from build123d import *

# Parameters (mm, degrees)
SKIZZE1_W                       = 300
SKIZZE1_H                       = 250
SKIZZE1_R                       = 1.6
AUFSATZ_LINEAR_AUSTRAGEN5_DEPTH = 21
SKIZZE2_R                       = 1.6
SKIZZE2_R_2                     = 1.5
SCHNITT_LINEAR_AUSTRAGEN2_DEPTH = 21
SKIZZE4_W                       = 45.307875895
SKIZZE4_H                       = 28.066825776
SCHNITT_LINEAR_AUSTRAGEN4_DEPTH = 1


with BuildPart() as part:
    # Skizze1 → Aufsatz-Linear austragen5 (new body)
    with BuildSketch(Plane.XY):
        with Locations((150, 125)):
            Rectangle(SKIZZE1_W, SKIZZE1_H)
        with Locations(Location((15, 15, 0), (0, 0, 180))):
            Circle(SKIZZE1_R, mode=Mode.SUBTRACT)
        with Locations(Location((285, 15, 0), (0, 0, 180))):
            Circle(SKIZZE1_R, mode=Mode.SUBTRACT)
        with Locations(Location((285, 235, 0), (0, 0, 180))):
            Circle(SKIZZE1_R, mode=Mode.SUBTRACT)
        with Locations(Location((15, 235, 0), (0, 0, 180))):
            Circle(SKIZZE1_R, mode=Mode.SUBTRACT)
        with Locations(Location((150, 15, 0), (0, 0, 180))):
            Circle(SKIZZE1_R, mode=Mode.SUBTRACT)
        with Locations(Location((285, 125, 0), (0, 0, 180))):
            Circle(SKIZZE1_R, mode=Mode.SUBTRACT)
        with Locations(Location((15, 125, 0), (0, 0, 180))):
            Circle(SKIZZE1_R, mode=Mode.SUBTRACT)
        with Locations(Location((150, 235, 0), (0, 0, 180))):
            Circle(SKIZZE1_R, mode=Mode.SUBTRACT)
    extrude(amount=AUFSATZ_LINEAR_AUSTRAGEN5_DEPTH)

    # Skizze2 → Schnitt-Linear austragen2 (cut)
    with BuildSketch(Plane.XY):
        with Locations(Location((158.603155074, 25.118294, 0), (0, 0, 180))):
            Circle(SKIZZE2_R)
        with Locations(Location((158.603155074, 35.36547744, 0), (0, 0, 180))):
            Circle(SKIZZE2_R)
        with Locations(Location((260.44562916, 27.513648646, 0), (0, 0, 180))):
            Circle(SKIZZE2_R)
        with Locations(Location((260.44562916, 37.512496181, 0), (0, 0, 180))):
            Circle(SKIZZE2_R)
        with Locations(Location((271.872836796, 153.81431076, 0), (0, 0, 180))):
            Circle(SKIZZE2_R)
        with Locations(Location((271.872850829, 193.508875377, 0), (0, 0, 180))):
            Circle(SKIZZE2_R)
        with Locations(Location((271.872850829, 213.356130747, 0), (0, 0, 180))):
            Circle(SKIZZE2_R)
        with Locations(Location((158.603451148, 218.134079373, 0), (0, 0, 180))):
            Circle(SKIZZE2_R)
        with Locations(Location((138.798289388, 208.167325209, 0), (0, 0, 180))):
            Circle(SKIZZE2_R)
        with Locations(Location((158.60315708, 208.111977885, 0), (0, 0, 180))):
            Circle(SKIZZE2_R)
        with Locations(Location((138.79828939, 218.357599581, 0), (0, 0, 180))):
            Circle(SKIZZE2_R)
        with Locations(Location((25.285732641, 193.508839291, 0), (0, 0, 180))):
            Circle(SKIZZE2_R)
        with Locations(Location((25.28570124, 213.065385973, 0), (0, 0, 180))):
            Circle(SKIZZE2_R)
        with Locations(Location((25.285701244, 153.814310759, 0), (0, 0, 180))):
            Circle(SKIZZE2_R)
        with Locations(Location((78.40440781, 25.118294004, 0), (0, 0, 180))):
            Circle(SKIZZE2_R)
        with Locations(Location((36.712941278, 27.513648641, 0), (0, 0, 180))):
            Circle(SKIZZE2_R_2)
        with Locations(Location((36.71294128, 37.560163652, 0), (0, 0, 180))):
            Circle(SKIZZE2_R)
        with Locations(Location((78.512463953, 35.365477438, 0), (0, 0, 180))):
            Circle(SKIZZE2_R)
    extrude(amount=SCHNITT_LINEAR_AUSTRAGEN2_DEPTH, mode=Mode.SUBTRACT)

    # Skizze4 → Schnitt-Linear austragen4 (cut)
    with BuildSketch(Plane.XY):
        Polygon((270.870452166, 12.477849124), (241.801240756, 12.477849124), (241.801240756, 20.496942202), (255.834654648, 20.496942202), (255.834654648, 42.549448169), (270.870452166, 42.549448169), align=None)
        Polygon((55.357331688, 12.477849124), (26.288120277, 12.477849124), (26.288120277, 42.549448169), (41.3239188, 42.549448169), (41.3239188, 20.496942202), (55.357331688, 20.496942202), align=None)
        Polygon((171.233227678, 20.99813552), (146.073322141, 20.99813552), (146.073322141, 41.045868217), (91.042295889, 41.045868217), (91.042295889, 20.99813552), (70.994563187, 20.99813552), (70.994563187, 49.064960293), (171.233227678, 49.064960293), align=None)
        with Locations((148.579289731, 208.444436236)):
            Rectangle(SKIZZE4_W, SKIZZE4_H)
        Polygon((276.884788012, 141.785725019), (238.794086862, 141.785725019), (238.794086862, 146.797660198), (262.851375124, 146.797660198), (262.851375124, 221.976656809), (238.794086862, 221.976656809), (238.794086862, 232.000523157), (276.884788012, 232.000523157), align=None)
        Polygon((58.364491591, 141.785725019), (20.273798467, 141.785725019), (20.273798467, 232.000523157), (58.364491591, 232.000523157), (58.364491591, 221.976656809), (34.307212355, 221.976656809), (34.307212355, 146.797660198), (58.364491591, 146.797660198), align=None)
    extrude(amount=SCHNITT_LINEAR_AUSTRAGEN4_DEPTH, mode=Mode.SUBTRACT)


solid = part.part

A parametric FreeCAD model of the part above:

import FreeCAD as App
import Part
import Sketcher
from FreeCAD import Vector


def add_polygon(sketch, points):
    """Adds a closed chain of lines whose ends are joined by coincident constraints."""
    first, n = sketch.GeometryCount, len(points)
    for a, b in zip(points, points[1:] + points[:1]):
        sketch.addGeometry(Part.LineSegment(App.Vector(*a, 0), App.Vector(*b, 0)), False)
    for i in range(n):
        sketch.addConstraint(Sketcher.Constraint("Coincident", first + i, 2, first + (i + 1) % n, 1))

doc = App.newDocument("Part")
body = doc.addObject("PartDesign::Body", "Body")

# Sketch on XY plane
sketch1 = body.newObject("Sketcher::SketchObject", "Sketch")
sketch1.AttachmentSupport = (doc.getObject("XY_Plane"), [""])
sketch1.MapMode = "FlatFace"
add_polygon(sketch1, [(0, 250), (0, 0), (300, 0), (300, 250)])  # lines 0-3
sketch1.addGeometry(Part.Circle(Vector(15, 15, 0), Vector(0, 0, 1), 1.6), False)  # 4
sketch1.addGeometry(Part.Circle(Vector(150, 15, 0), Vector(0, 0, 1), 1.6), False)  # 5
sketch1.addGeometry(Part.Circle(Vector(285, 15, 0), Vector(0, 0, 1), 1.6), False)  # 6
sketch1.addGeometry(Part.Circle(Vector(15, 125, 0), Vector(0, 0, 1), 1.6), False)  # 7
sketch1.addGeometry(Part.Circle(Vector(15, 235, 0), Vector(0, 0, 1), 1.6), False)  # 8
sketch1.addGeometry(Part.Circle(Vector(285, 125, 0), Vector(0, 0, 1), 1.6), False)  # 9
sketch1.addGeometry(Part.Circle(Vector(150, 235, 0), Vector(0, 0, 1), 1.6), False)  # 10
sketch1.addGeometry(Part.Circle(Vector(285, 235, 0), Vector(0, 0, 1), 1.6), False)  # 11
sketch1.addConstraint([
    Sketcher.Constraint("Vertical", 0),
    Sketcher.Constraint("Horizontal", 1),
    Sketcher.Constraint("Vertical", 2),
    Sketcher.Constraint("Horizontal", 3),
    Sketcher.Constraint("Coincident", 0, 2, -1, 1),
    Sketcher.Constraint("Equal", 4, 5),
    Sketcher.Constraint("Equal", 5, 6),
    Sketcher.Constraint("Equal", 6, 7),
    Sketcher.Constraint("Equal", 7, 8),
    Sketcher.Constraint("Equal", 8, 9),
    Sketcher.Constraint("Equal", 9, 10),
    Sketcher.Constraint("Equal", 10, 11),
    Sketcher.Constraint("Horizontal", 4, 3, 5, 3),
    Sketcher.Constraint("Horizontal", 5, 3, 6, 3),
    Sketcher.Constraint("Horizontal", 7, 3, 9, 3),
    Sketcher.Constraint("Horizontal", 8, 3, 10, 3),
    Sketcher.Constraint("Horizontal", 10, 3, 11, 3),
    Sketcher.Constraint("Vertical", 4, 3, 7, 3),
    Sketcher.Constraint("Vertical", 7, 3, 8, 3),
    Sketcher.Constraint("Vertical", 6, 3, 9, 3),
    Sketcher.Constraint("Vertical", 5, 3, 10, 3),
    Sketcher.Constraint("Vertical", 9, 3, 11, 3),
    Sketcher.Constraint("Diameter", 4, 3.2),
    Sketcher.Constraint("DistanceX", 1, 1, 1, 2, 300.0),
    Sketcher.Constraint("DistanceY", 0, 2, 0, 1, 250.0),
    Sketcher.Constraint("DistanceX", -1, 1, 4, 3, 15.0),
    Sketcher.Constraint("DistanceY", -1, 1, 4, 3, 15.0),
    Sketcher.Constraint("DistanceX", -1, 1, 5, 3, 150.0),
    Sketcher.Constraint("DistanceX", -1, 1, 6, 3, 285.0),
    Sketcher.Constraint("DistanceY", -1, 1, 7, 3, 125.0),
    Sketcher.Constraint("DistanceY", -1, 1, 8, 3, 235.0),
])
pad1 = body.newObject("PartDesign::Pad", "Pad")
pad1.Profile = sketch1
pad1.Length = 21

# Sketch on XY plane
sketch2 = body.newObject("Sketcher::SketchObject", "Sketch001")
sketch2.AttachmentSupport = (doc.getObject("XY_Plane"), [""])
sketch2.MapMode = "FlatFace"
sketch2.addGeometry([
    Part.Circle(Vector(158.6, 25.1, 0), Vector(0, 0, 1), 1.6),  # 0
    Part.Circle(Vector(158.6, 35.4, 0), Vector(0, 0, 1), 1.6),  # 1
    Part.Circle(Vector(260.4, 27.5, 0), Vector(0, 0, 1), 1.6),  # 2
    Part.Circle(Vector(260.4, 37.5, 0), Vector(0, 0, 1), 1.6),  # 3
    Part.Circle(Vector(271.9, 153.8, 0), Vector(0, 0, 1), 1.6),  # 4
    Part.Circle(Vector(271.9, 193.5, 0), Vector(0, 0, 1), 1.6),  # 5
    Part.Circle(Vector(271.9, 213.4, 0), Vector(0, 0, 1), 1.6),  # 6
    Part.Circle(Vector(158.6, 218.1, 0), Vector(0, 0, 1), 1.6),  # 7
    Part.Circle(Vector(138.8, 208.2, 0), Vector(0, 0, 1), 1.6),  # 8
    Part.Circle(Vector(158.6, 208.1, 0), Vector(0, 0, 1), 1.6),  # 9
    Part.Circle(Vector(138.8, 218.4, 0), Vector(0, 0, 1), 1.6),  # 10
    Part.Circle(Vector(25.3, 193.5, 0), Vector(0, 0, 1), 1.6),  # 11
    Part.Circle(Vector(25.3, 213.1, 0), Vector(0, 0, 1), 1.6),  # 12
    Part.Circle(Vector(25.3, 153.8, 0), Vector(0, 0, 1), 1.6),  # 13
    Part.Circle(Vector(78.4, 25.1, 0), Vector(0, 0, 1), 1.6),  # 14
    Part.Circle(Vector(36.7, 27.5, 0), Vector(0, 0, 1), 1.5),  # 15
    Part.Circle(Vector(36.7, 37.6, 0), Vector(0, 0, 1), 1.6),  # 16
    Part.Circle(Vector(78.5, 35.4, 0), Vector(0, 0, 1), 1.6),  # 17
], False)
sketch2.addConstraint([
    Sketcher.Constraint("Equal", 0, 1),
    Sketcher.Constraint("Equal", 1, 2),
    Sketcher.Constraint("Equal", 2, 3),
    Sketcher.Constraint("Equal", 3, 4),
    Sketcher.Constraint("Equal", 4, 5),
    Sketcher.Constraint("Equal", 5, 6),
    Sketcher.Constraint("Equal", 6, 7),
    Sketcher.Constraint("Equal", 7, 8),
    Sketcher.Constraint("Equal", 8, 9),
    Sketcher.Constraint("Equal", 9, 10),
    Sketcher.Constraint("Equal", 10, 11),
    Sketcher.Constraint("Equal", 11, 12),
    Sketcher.Constraint("Equal", 12, 13),
    Sketcher.Constraint("Equal", 13, 14),
    Sketcher.Constraint("Equal", 14, 16),
    Sketcher.Constraint("Equal", 16, 17),
    Sketcher.Constraint("Horizontal", 4, 3, 13, 3),
    Sketcher.Constraint("Horizontal", 0, 3, 14, 3),
    Sketcher.Constraint("Horizontal", 2, 3, 15, 3),
    Sketcher.Constraint("Horizontal", 1, 3, 17, 3),
    Sketcher.Constraint("Vertical", 0, 3, 1, 3),
    Sketcher.Constraint("Vertical", 2, 3, 3, 3),
    Sketcher.Constraint("Vertical", 5, 3, 6, 3),
    Sketcher.Constraint("Vertical", 8, 3, 10, 3),
    Sketcher.Constraint("Vertical", 12, 3, 13, 3),
    Sketcher.Constraint("Vertical", 15, 3, 16, 3),
    Sketcher.Constraint("Diameter", 15, 3.0),
    Sketcher.Constraint("Diameter", 0, 3.2),
    Sketcher.Constraint("DistanceY", -1, 1, 10, 3, 218.3576),
    Sketcher.Constraint("DistanceX", -1, 1, 12, 3, 25.285701),
    Sketcher.Constraint("DistanceX", 7, 3, 6, 3, 113.2694),
    Sketcher.Constraint("DistanceY", 1, 3, 7, 3, 182.768602),
    Sketcher.Constraint("DistanceY", 9, 3, 7, 3, 10.022101),
    Sketcher.Constraint("DistanceX", -1, 1, 2, 3, 260.445629),
    Sketcher.Constraint("DistanceY", -1, 1, 2, 3, 27.513649),
    Sketcher.Constraint("DistanceY", -1, 1, 4, 3, 153.814311),
    Sketcher.Constraint("DistanceX", -1, 1, 5, 3, 271.872851),
    Sketcher.Constraint("DistanceY", -1, 1, 6, 3, 213.356131),
    Sketcher.Constraint("DistanceY", -1, 1, 7, 3, 218.134079),
    Sketcher.Constraint("DistanceX", -1, 1, 8, 3, 138.798289),
    Sketcher.Constraint("DistanceY", -1, 1, 11, 3, 193.508839),
    Sketcher.Constraint("DistanceX", -1, 1, 15, 3, 36.712941),
    Sketcher.Constraint("DistanceY", 1, 3, 3, 3, 2.147019),
    Sketcher.Constraint("DistanceX", 1, 3, 4, 3, 113.269682),
    Sketcher.Constraint("DistanceY", 3, 3, 5, 3, 155.996379),
    Sketcher.Constraint("DistanceY", 0, 3, 5, 3, 168.390581),
    Sketcher.Constraint("DistanceY", 5, 3, 8, 3, 14.65845),
    Sketcher.Constraint("DistanceX", 9, 3, 4, 3, 113.26968),
    Sketcher.Constraint("DistanceX", 11, 3, 7, 3, 133.317719),
    Sketcher.Constraint("DistanceY", 8, 3, 12, 3, 4.898061),
    Sketcher.Constraint("DistanceX", 14, 3, 2, 3, 182.041221),
    Sketcher.Constraint("DistanceY", 14, 3, 16, 3, 12.44187),
    Sketcher.Constraint("DistanceX", 17, 3, 1, 3, 80.090691),
    Sketcher.Constraint("DistanceX", -1, 1, 0, 3, 158.603155),
])
pocket1 = body.newObject("PartDesign::Pocket", "Pocket")
pocket1.Profile = sketch2
pocket1.Length = 21
pocket1.Reversed = True

# Sketch on XY plane
sketch3 = body.newObject("Sketcher::SketchObject", "Sketch002")
sketch3.AttachmentSupport = (doc.getObject("XY_Plane"), [""])
sketch3.MapMode = "FlatFace"
add_polygon(sketch3, [(242, 12), (271, 12), (271, 43), (256, 43), (256, 20), (242, 20)])  # lines 0-5
add_polygon(sketch3, [(26, 12), (55, 12), (55, 20), (41, 20), (41, 43), (26, 43)])  # lines 6-11
add_polygon(sketch3, [(146, 21), (171, 21), (171, 49), (71, 49), (71, 21), (91, 21), (91, 41), (146, 41)])  # lines 12-19
add_polygon(sketch3, [(126, 222), (126, 194), (171, 194), (171, 222)])  # lines 20-23
add_polygon(sketch3, [(239, 142), (277, 142), (277, 232), (239, 232), (239, 222), (263, 222), (263, 147), (239, 147)])  # lines 24-31
add_polygon(sketch3, [(20, 142), (58, 142), (58, 147), (34, 147), (34, 222), (58, 222), (58, 232), (20, 232)])  # lines 32-39
sketch3.addConstraint([
    Sketcher.Constraint("Horizontal", 0),
    Sketcher.Constraint("Vertical", 1),
    Sketcher.Constraint("Horizontal", 2),
    Sketcher.Constraint("Vertical", 3),
    Sketcher.Constraint("Horizontal", 4),
    Sketcher.Constraint("Vertical", 5),
    Sketcher.Constraint("Horizontal", 6),
    Sketcher.Constraint("Vertical", 7),
    Sketcher.Constraint("Horizontal", 8),
    Sketcher.Constraint("Vertical", 9),
    Sketcher.Constraint("Horizontal", 10),
    Sketcher.Constraint("Vertical", 11),
    Sketcher.Constraint("Horizontal", 12),
    Sketcher.Constraint("Vertical", 13),
    Sketcher.Constraint("Horizontal", 14),
    Sketcher.Constraint("Vertical", 15),
    Sketcher.Constraint("Horizontal", 16),
    Sketcher.Constraint("Vertical", 17),
    Sketcher.Constraint("Horizontal", 18),
    Sketcher.Constraint("Vertical", 19),
    Sketcher.Constraint("Vertical", 20),
    Sketcher.Constraint("Horizontal", 21),
    Sketcher.Constraint("Vertical", 22),
    Sketcher.Constraint("Horizontal", 23),
    Sketcher.Constraint("Horizontal", 24),
    Sketcher.Constraint("Vertical", 25),
    Sketcher.Constraint("Horizontal", 26),
    Sketcher.Constraint("Vertical", 27),
    Sketcher.Constraint("Horizontal", 28),
    Sketcher.Constraint("Vertical", 29),
    Sketcher.Constraint("Horizontal", 30),
    Sketcher.Constraint("Vertical", 31),
    Sketcher.Constraint("Horizontal", 32),
    Sketcher.Constraint("Vertical", 33),
    Sketcher.Constraint("Horizontal", 34),
    Sketcher.Constraint("Vertical", 35),
    Sketcher.Constraint("Horizontal", 36),
    Sketcher.Constraint("Vertical", 37),
    Sketcher.Constraint("Horizontal", 38),
    Sketcher.Constraint("Vertical", 39),
    Sketcher.Constraint("Horizontal", 5, 2, 6, 2),
    Sketcher.Constraint("Horizontal", 4, 2, 7, 2),
    Sketcher.Constraint("Horizontal", 2, 2, 9, 2),
    Sketcher.Constraint("Horizontal", 12, 2, 15, 2),
    Sketcher.Constraint("Horizontal", 31, 2, 32, 2),
    Sketcher.Constraint("Horizontal", 30, 2, 33, 2),
    Sketcher.Constraint("Horizontal", 28, 2, 35, 2),
    Sketcher.Constraint("Horizontal", 26, 2, 37, 2),
    Sketcher.Constraint("Vertical", 13, 2, 21, 2),
    Sketcher.Constraint("Vertical", 27, 2, 30, 2),
    Sketcher.Constraint("Vertical", 33, 2, 36, 2),
    Sketcher.Constraint("Equal", 0, 6),
    Sketcher.Constraint("Equal", 4, 8),
    Sketcher.Constraint("Equal", 16, 17),
    Sketcher.Constraint("Equal", 15, 20),
    Sketcher.Constraint("DistanceX", 10, 2, 10, 1, 15.035799),
    Sketcher.Constraint("DistanceX", 24, 1, 24, 2, 38.090701),
    Sketcher.Constraint("DistanceY", 1, 1, 1, 2, 30.071599),
    Sketcher.Constraint("DistanceY", 25, 1, 25, 2, 90.214798),
    Sketcher.Constraint("DistanceX", 0, 1, 0, 2, 29.069211),
    Sketcher.Constraint("DistanceX", 28, 1, 28, 2, 24.057288),
    Sketcher.Constraint("DistanceX", 34, 2, 34, 1, 24.057279),
    Sketcher.Constraint("DistanceX", -1, 1, 38, 2, 20.273798),
    Sketcher.Constraint("DistanceY", 24, 2, 21, 2, 52.625298),
    Sketcher.Constraint("DistanceY", 14, 2, 33, 2, 97.7327),
    Sketcher.Constraint("DistanceX", 12, 1, 12, 2, 25.159906),
    Sketcher.Constraint("DistanceX", 14, 2, 14, 1, 100.238664),
    Sketcher.Constraint("DistanceX", 16, 1, 16, 2, 20.047733),
    Sketcher.Constraint("DistanceX", 21, 1, 21, 2, 45.307876),
    Sketcher.Constraint("DistanceX", 32, 1, 32, 2, 38.090693),
    Sketcher.Constraint("DistanceY", 3, 2, 3, 1, 22.052506),
    Sketcher.Constraint("DistanceY", 13, 1, 13, 2, 28.066825),
    Sketcher.Constraint("DistanceY", 27, 2, 27, 1, 10.023866),
    Sketcher.Constraint("DistanceY", 29, 2, 29, 1, 75.178997),
    Sketcher.Constraint("DistanceY", -1, 1, 0, 2, 12.477849),
    Sketcher.Constraint("DistanceX", -1, 1, 4, 2, 241.801241),
    Sketcher.Constraint("DistanceX", -1, 1, 6, 2, 55.357332),
    Sketcher.Constraint("DistanceY", -1, 1, 13, 2, 49.06496),
    Sketcher.Constraint("DistanceX", -1, 1, 20, 2, 125.925352),
    Sketcher.Constraint("DistanceX", -1, 1, 24, 2, 276.884788),
])
pocket2 = body.newObject("PartDesign::Pocket", "Pocket001")
pocket2.Profile = sketch3
pocket2.Length = 1
pocket2.Reversed = True

doc.recompute()
